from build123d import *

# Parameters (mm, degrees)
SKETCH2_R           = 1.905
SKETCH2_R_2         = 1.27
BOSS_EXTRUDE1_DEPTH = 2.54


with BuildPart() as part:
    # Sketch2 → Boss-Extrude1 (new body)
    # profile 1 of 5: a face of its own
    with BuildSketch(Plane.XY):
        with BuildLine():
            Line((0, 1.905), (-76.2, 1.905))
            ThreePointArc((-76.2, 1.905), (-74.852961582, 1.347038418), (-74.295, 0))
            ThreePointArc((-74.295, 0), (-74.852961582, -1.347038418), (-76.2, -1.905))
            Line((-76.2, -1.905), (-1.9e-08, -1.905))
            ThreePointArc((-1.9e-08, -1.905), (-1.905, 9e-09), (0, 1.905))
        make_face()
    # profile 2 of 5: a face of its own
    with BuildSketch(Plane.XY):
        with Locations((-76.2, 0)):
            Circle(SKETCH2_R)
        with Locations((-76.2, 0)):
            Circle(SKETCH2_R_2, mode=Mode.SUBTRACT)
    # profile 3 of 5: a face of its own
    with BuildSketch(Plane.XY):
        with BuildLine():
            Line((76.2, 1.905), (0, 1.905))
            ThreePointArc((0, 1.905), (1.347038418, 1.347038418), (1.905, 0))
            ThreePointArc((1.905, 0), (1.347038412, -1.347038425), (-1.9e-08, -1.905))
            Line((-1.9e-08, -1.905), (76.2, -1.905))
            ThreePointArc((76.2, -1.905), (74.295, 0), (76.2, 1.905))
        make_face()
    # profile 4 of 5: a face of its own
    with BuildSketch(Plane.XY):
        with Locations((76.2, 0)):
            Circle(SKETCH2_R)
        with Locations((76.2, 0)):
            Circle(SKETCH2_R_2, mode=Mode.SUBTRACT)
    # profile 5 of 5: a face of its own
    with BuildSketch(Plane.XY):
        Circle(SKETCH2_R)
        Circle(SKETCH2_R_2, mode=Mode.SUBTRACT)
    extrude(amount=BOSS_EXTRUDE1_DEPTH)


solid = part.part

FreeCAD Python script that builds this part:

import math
import FreeCAD as App
import Part
import Sketcher
Q = App.Units.Quantity

doc = App.newDocument("Part")
body = doc.addObject("PartDesign::Body", "Body")

# Sketch on XY plane
sketch1 = body.newObject("Sketcher::SketchObject", "Sketch")
sketch1.AttachmentSupport = (doc.getObject("XY_Plane"), [""])
sketch1.MapMode = "FlatFace"
sketch1.addGeometry([
    Part.ArcOfCircle(Part.Circle(App.Vector(-76.2, 0, 0), App.Vector(0, 0, 1), 1.905), math.radians(90), math.radians(270)),  # 0
    Part.LineSegment(App.Vector(-76.2, -1.905, 0), App.Vector(76.2, -1.905, 0)),  # 1
    Part.ArcOfCircle(Part.Circle(App.Vector(76.2, 0, 0), App.Vector(0, 0, 1), 1.905), math.radians(-90), math.radians(90)),  # 2
    Part.LineSegment(App.Vector(76.2, 1.905, 0), App.Vector(-76.2, 1.905, 0)),  # 3
    Part.Circle(App.Vector(-76.2, 0, 0), App.Vector(0, 0, 1), 1.27),  # 4
    Part.Circle(App.Vector(0, 0, 0), App.Vector(0, 0, 1), 1.27),  # 5
    Part.Circle(App.Vector(76.2, 0, 0), App.Vector(0, 0, 1), 1.27),  # 6
], False)
sketch1.addConstraint([
    Sketcher.Constraint("Tangent", 0, 2, 1, 1),
    Sketcher.Constraint("Tangent", 1, 2, 2, 1),
    Sketcher.Constraint("Tangent", 2, 2, 3, 1),
    Sketcher.Constraint("Tangent", 3, 2, 0, 1),
    Sketcher.Constraint("Horizontal", 1),
    Sketcher.Constraint("Horizontal", 3),
    Sketcher.Constraint("Coincident", 5, 3, -1, 1),
    Sketcher.Constraint("Coincident", 4, 3, 0, 3),
    Sketcher.Constraint("Coincident", 6, 3, 2, 3),
    Sketcher.Constraint("Equal", 4, 5),
    Sketcher.Constraint("Equal", 5, 6),
    Sketcher.Constraint("Symmetric", 0, 3, 2, 3, -1, 1),
    Sketcher.Constraint("Diameter", 4, Q("0.1 in")),
    Sketcher.Constraint("DistanceX", 1, 1, 1, 2, Q("6 in")),
    Sketcher.Constraint("Radius", 0, Q("0.075 in")),
])
pad1 = body.newObject("PartDesign::Pad", "Pad")
pad1.Profile = sketch1
pad1.Length = Q("0.1 in")

doc.recompute()
